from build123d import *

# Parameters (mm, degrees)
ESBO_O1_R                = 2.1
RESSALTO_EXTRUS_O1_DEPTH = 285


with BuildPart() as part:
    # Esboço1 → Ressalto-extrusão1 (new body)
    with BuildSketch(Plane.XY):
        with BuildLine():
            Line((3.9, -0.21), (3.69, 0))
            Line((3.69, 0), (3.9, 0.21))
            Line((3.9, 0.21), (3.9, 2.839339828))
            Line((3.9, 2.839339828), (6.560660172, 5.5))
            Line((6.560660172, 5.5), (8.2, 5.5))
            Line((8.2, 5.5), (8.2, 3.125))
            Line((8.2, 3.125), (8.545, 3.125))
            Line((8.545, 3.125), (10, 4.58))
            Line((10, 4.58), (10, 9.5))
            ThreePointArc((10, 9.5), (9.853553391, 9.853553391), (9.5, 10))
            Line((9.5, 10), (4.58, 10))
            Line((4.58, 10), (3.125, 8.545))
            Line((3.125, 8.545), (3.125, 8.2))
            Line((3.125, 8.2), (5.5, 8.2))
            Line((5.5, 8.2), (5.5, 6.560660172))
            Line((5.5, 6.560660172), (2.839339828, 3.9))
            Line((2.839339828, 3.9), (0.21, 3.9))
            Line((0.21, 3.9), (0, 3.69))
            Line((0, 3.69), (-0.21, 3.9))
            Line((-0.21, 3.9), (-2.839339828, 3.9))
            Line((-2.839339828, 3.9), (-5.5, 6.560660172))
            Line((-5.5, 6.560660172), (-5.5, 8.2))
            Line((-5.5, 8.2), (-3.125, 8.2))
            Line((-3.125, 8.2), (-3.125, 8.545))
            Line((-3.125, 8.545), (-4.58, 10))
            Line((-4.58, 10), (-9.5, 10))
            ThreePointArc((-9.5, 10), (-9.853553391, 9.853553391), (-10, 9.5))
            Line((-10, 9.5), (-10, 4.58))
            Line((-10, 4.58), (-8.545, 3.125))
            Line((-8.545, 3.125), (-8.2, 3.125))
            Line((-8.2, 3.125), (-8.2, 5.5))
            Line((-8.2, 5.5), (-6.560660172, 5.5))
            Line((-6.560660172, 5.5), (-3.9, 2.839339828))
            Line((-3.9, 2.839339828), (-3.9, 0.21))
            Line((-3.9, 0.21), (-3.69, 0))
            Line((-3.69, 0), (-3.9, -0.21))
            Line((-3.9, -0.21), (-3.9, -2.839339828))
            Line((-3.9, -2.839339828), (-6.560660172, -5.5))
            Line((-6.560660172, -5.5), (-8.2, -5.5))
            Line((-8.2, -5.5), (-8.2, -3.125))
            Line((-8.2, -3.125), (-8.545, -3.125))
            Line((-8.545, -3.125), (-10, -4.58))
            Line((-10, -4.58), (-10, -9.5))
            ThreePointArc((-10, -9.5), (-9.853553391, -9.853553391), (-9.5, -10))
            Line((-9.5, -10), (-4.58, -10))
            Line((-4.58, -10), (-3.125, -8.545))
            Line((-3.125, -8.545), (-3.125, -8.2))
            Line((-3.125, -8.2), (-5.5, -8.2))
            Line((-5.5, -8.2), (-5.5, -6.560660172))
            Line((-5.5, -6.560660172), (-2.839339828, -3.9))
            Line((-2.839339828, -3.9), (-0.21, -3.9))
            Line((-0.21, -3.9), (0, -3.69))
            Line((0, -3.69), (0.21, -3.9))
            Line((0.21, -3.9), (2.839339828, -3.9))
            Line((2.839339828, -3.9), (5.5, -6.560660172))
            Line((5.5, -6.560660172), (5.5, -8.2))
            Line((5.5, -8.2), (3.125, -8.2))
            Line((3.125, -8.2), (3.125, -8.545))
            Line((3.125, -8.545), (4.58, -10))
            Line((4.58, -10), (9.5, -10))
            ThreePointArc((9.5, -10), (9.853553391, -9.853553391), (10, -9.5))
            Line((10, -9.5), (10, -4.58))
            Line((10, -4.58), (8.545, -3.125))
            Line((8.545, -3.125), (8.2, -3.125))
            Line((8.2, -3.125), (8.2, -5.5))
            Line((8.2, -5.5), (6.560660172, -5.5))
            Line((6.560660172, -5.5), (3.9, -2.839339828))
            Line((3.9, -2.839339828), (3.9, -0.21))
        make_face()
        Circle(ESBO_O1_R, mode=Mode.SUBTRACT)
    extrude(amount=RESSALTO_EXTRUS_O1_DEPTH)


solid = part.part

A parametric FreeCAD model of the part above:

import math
import FreeCAD as App
import Part
import Sketcher

doc = App.newDocument("Part")
body = doc.addObject("PartDesign::Body", "Body")

# Sketch on XY plane
sketch1 = body.newObject("Sketcher::SketchObject", "Sketch")
sketch1.AttachmentSupport = (doc.getObject("XY_Plane"), [""])
sketch1.MapMode = "FlatFace"
sketch1.addGeometry([
    Part.LineSegment(App.Vector(3.9, -0.21, 0), App.Vector(3.69, 0, 0)),  # 0
    Part.LineSegment(App.Vector(3.69, 0, 0), App.Vector(3.9, 0.21, 0)),  # 1
    Part.LineSegment(App.Vector(3.9, 0.21, 0), App.Vector(3.9, 2.83934, 0)),  # 2
    Part.LineSegment(App.Vector(3.9, 2.83934, 0), App.Vector(6.56066, 5.5, 0)),  # 3
    Part.LineSegment(App.Vector(6.56066, 5.5, 0), App.Vector(8.2, 5.5, 0)),  # 4
    Part.LineSegment(App.Vector(8.2, 5.5, 0), App.Vector(8.2, 3.125, 0)),  # 5
    Part.LineSegment(App.Vector(8.2, 3.125, 0), App.Vector(8.545, 3.125, 0)),  # 6
    Part.LineSegment(App.Vector(8.545, 3.125, 0), App.Vector(10, 4.58, 0)),  # 7
    Part.LineSegment(App.Vector(10, 4.58, 0), App.Vector(10, 9.5, 0)),  # 8
    Part.ArcOfCircle(Part.Circle(App.Vector(9.5, 9.5, 0), App.Vector(0, 0, 1), 0.5), math.radians(0), math.radians(90)),  # 9
    Part.LineSegment(App.Vector(9.5, 10, 0), App.Vector(4.58, 10, 0)),  # 10
    Part.LineSegment(App.Vector(4.58, 10, 0), App.Vector(3.125, 8.545, 0)),  # 11
    Part.LineSegment(App.Vector(3.125, 8.545, 0), App.Vector(3.125, 8.2, 0)),  # 12
    Part.LineSegment(App.Vector(3.125, 8.2, 0), App.Vector(5.5, 8.2, 0)),  # 13
    Part.LineSegment(App.Vector(5.5, 8.2, 0), App.Vector(5.5, 6.56066, 0)),  # 14
    Part.LineSegment(App.Vector(5.5, 6.56066, 0), App.Vector(2.83934, 3.9, 0)),  # 15
    Part.LineSegment(App.Vector(2.83934, 3.9, 0), App.Vector(0.21, 3.9, 0)),  # 16
    Part.LineSegment(App.Vector(0.21, 3.9, 0), App.Vector(0, 3.69, 0)),  # 17
    Part.LineSegment(App.Vector(0, 3.69, 0), App.Vector(-0.21, 3.9, 0)),  # 18
    Part.LineSegment(App.Vector(-0.21, 3.9, 0), App.Vector(-2.83934, 3.9, 0)),  # 19
    Part.LineSegment(App.Vector(-2.83934, 3.9, 0), App.Vector(-5.5, 6.56066, 0)),  # 20
    Part.LineSegment(App.Vector(-5.5, 6.56066, 0), App.Vector(-5.5, 8.2, 0)),  # 21
    Part.LineSegment(App.Vector(-5.5, 8.2, 0), App.Vector(-3.125, 8.2, 0)),  # 22
    Part.LineSegment(App.Vector(-3.125, 8.2, 0), App.Vector(-3.125, 8.545, 0)),  # 23
    Part.LineSegment(App.Vector(-3.125, 8.545, 0), App.Vector(-4.58, 10, 0)),  # 24
    Part.LineSegment(App.Vector(-4.58, 10, 0), App.Vector(-9.5, 10, 0)),  # 25
    Part.ArcOfCircle(Part.Circle(App.Vector(-9.5, 9.5, 0), App.Vector(0, 0, 1), 0.5), math.radians(90), math.radians(180)),  # 26
    Part.LineSegment(App.Vector(-10, 9.5, 0), App.Vector(-10, 4.58, 0)),  # 27
    Part.LineSegment(App.Vector(-10, 4.58, 0), App.Vector(-8.545, 3.125, 0)),  # 28
    Part.LineSegment(App.Vector(-8.545, 3.125, 0), App.Vector(-8.2, 3.125, 0)),  # 29
    Part.LineSegment(App.Vector(-8.2, 3.125, 0), App.Vector(-8.2, 5.5, 0)),  # 30
    Part.LineSegment(App.Vector(-8.2, 5.5, 0), App.Vector(-6.56066, 5.5, 0)),  # 31
    Part.LineSegment(App.Vector(-6.56066, 5.5, 0), App.Vector(-3.9, 2.83934, 0)),  # 32
    Part.LineSegment(App.Vector(-3.9, 2.83934, 0), App.Vector(-3.9, 0.21, 0)),  # 33
    Part.LineSegment(App.Vector(-3.9, 0.21, 0), App.Vector(-3.69, 0, 0)),  # 34
    Part.LineSegment(App.Vector(-3.69, 0, 0), App.Vector(-3.9, -0.21, 0)),  # 35
    Part.LineSegment(App.Vector(-3.9, -0.21, 0), App.Vector(-3.9, -2.83934, 0)),  # 36
    Part.LineSegment(App.Vector(-3.9, -2.83934, 0), App.Vector(-6.56066, -5.5, 0)),  # 37
    Part.LineSegment(App.Vector(-6.56066, -5.5, 0), App.Vector(-8.2, -5.5, 0)),  # 38
    Part.LineSegment(App.Vector(-8.2, -5.5, 0), App.Vector(-8.2, -3.125, 0)),  # 39
    Part.LineSegment(App.Vector(-8.2, -3.125, 0), App.Vector(-8.545, -3.125, 0)),  # 40
    Part.LineSegment(App.Vector(-8.545, -3.125, 0), App.Vector(-10, -4.58, 0)),  # 41
    Part.LineSegment(App.Vector(-10, -4.58, 0), App.Vector(-10, -9.5, 0)),  # 42
    Part.ArcOfCircle(Part.Circle(App.Vector(-9.5, -9.5, 0), App.Vector(0, 0, 1), 0.5), math.radians(180), math.radians(270)),  # 43
    Part.LineSegment(App.Vector(-9.5, -10, 0), App.Vector(-4.58, -10, 0)),  # 44
    Part.LineSegment(App.Vector(-4.58, -10, 0), App.Vector(-3.125, -8.545, 0)),  # 45
    Part.LineSegment(App.Vector(-3.125, -8.545, 0), App.Vector(-3.125, -8.2, 0)),  # 46
    Part.LineSegment(App.Vector(-3.125, -8.2, 0), App.Vector(-5.5, -8.2, 0)),  # 47
    Part.LineSegment(App.Vector(-5.5, -8.2, 0), App.Vector(-5.5, -6.56066, 0)),  # 48
    Part.LineSegment(App.Vector(-5.5, -6.56066, 0), App.Vector(-2.83934, -3.9, 0)),  # 49
    Part.LineSegment(App.Vector(-2.83934, -3.9, 0), App.Vector(-0.21, -3.9, 0)),  # 50
    Part.LineSegment(App.Vector(-0.21, -3.9, 0), App.Vector(0, -3.69, 0)),  # 51
    Part.LineSegment(App.Vector(0, -3.69, 0), App.Vector(0.21, -3.9, 0)),  # 52
    Part.LineSegment(App.Vector(0.21, -3.9, 0), App.Vector(2.83934, -3.9, 0)),  # 53
    Part.LineSegment(App.Vector(2.83934, -3.9, 0), App.Vector(5.5, -6.56066, 0)),  # 54
    Part.LineSegment(App.Vector(5.5, -6.56066, 0), App.Vector(5.5, -8.2, 0)),  # 55
    Part.LineSegment(App.Vector(5.5, -8.2, 0), App.Vector(3.125, -8.2, 0)),  # 56
    Part.LineSegment(App.Vector(3.125, -8.2, 0), App.Vector(3.125, -8.545, 0)),  # 57
    Part.LineSegment(App.Vector(3.125, -8.545, 0), App.Vector(4.58, -10, 0)),  # 58
    Part.LineSegment(App.Vector(4.58, -10, 0), App.Vector(9.5, -10, 0)),  # 59
    Part.ArcOfCircle(Part.Circle(App.Vector(9.5, -9.5, 0), App.Vector(0, 0, 1), 0.5), math.radians(-90), math.radians(0)),  # 60
    Part.LineSegment(App.Vector(10, -9.5, 0), App.Vector(10, -4.58, 0)),  # 61
    Part.LineSegment(App.Vector(10, -4.58, 0), App.Vector(8.545, -3.125, 0)),  # 62
    Part.LineSegment(App.Vector(8.545, -3.125, 0), App.Vector(8.2, -3.125, 0)),  # 63
    Part.LineSegment(App.Vector(8.2, -3.125, 0), App.Vector(8.2, -5.5, 0)),  # 64
    Part.LineSegment(App.Vector(8.2, -5.5, 0), App.Vector(6.56066, -5.5, 0)),  # 65
    Part.LineSegment(App.Vector(6.56066, -5.5, 0), App.Vector(3.9, -2.83934, 0)),  # 66
    Part.LineSegment(App.Vector(3.9, -2.83934, 0), App.Vector(3.9, -0.21, 0)),  # 67
    Part.Circle(App.Vector(0, 0, 0), App.Vector(0, 0, 1), 2.1),  # 68
], False)
sketch1.addConstraint([
    Sketcher.Constraint("Coincident", 0, 2, 1, 1),
    Sketcher.Constraint("Coincident", 1, 2, 2, 1),
    Sketcher.Constraint("Coincident", 2, 2, 3, 1),
    Sketcher.Constraint("Coincident", 3, 2, 4, 1),
    Sketcher.Constraint("Coincident", 4, 2, 5, 1),
    Sketcher.Constraint("Coincident", 5, 2, 6, 1),
    Sketcher.Constraint("Coincident", 6, 2, 7, 1),
    Sketcher.Constraint("Coincident", 7, 2, 8, 1),
    Sketcher.Constraint("Tangent", 8, 2, 9, 1),
    Sketcher.Constraint("Tangent", 9, 2, 10, 1),
    Sketcher.Constraint("Coincident", 10, 2, 11, 1),
    Sketcher.Constraint("Coincident", 11, 2, 12, 1),
    Sketcher.Constraint("Coincident", 12, 2, 13, 1),
    Sketcher.Constraint("Coincident", 13, 2, 14, 1),
    Sketcher.Constraint("Coincident", 14, 2, 15, 1),
    Sketcher.Constraint("Coincident", 15, 2, 16, 1),
    Sketcher.Constraint("Coincident", 16, 2, 17, 1),
    Sketcher.Constraint("Coincident", 17, 2, 18, 1),
    Sketcher.Constraint("Coincident", 18, 2, 19, 1),
    Sketcher.Constraint("Coincident", 19, 2, 20, 1),
    Sketcher.Constraint("Coincident", 20, 2, 21, 1),
    Sketcher.Constraint("Coincident", 21, 2, 22, 1),
    Sketcher.Constraint("Coincident", 22, 2, 23, 1),
    Sketcher.Constraint("Coincident", 23, 2, 24, 1),
    Sketcher.Constraint("Coincident", 24, 2, 25, 1),
    Sketcher.Constraint("Tangent", 25, 2, 26, 1),
    Sketcher.Constraint("Tangent", 26, 2, 27, 1),
    Sketcher.Constraint("Coincident", 27, 2, 28, 1),
    Sketcher.Constraint("Coincident", 28, 2, 29, 1),
    Sketcher.Constraint("Coincident", 29, 2, 30, 1),
    Sketcher.Constraint("Coincident", 30, 2, 31, 1),
    Sketcher.Constraint("Coincident", 31, 2, 32, 1),
    Sketcher.Constraint("Coincident", 32, 2, 33, 1),
    Sketcher.Constraint("Coincident", 33, 2, 34, 1),
    Sketcher.Constraint("Coincident", 34, 2, 35, 1),
    Sketcher.Constraint("Coincident", 35, 2, 36, 1),
    Sketcher.Constraint("Coincident", 36, 2, 37, 1),
    Sketcher.Constraint("Coincident", 37, 2, 38, 1),
    Sketcher.Constraint("Coincident", 38, 2, 39, 1),
    Sketcher.Constraint("Coincident", 39, 2, 40, 1),
    Sketcher.Constraint("Coincident", 40, 2, 41, 1),
    Sketcher.Constraint("Coincident", 41, 2, 42, 1),
    Sketcher.Constraint("Tangent", 42, 2, 43, 1),
    Sketcher.Constraint("Tangent", 43, 2, 44, 1),
    Sketcher.Constraint("Coincident", 44, 2, 45, 1),
    Sketcher.Constraint("Coincident", 45, 2, 46, 1),
    Sketcher.Constraint("Coincident", 46, 2, 47, 1),
    Sketcher.Constraint("Coincident", 47, 2, 48, 1),
    Sketcher.Constraint("Coincident", 48, 2, 49, 1),
    Sketcher.Constraint("Coincident", 49, 2, 50, 1),
    Sketcher.Constraint("Coincident", 50, 2, 51, 1),
    Sketcher.Constraint("Coincident", 51, 2, 52, 1),
    Sketcher.Constraint("Coincident", 52, 2, 53, 1),
    Sketcher.Constraint("Coincident", 53, 2, 54, 1),
    Sketcher.Constraint("Coincident", 54, 2, 55, 1),
    Sketcher.Constraint("Coincident", 55, 2, 56, 1),
    Sketcher.Constraint("Coincident", 56, 2, 57, 1),
    Sketcher.Constraint("Coincident", 57, 2, 58, 1),
    Sketcher.Constraint("Coincident", 58, 2, 59, 1),
    Sketcher.Constraint("Tangent", 59, 2, 60, 1),
    Sketcher.Constraint("Tangent", 60, 2, 61, 1),
    Sketcher.Constraint("Coincident", 61, 2, 62, 1),
    Sketcher.Constraint("Coincident", 62, 2, 63, 1),
    Sketcher.Constraint("Coincident", 63, 2, 64, 1),
    Sketcher.Constraint("Coincident", 64, 2, 65, 1),
    Sketcher.Constraint("Coincident", 65, 2, 66, 1),
    Sketcher.Constraint("Coincident", 66, 2, 67, 1),
    Sketcher.Constraint("Coincident", 67, 2, 0, 1),
    Sketcher.Constraint("Vertical", 2),
    Sketcher.Constraint("Horizontal", 4),
    Sketcher.Constraint("Vertical", 5),
    Sketcher.Constraint("Horizontal", 6),
    Sketcher.Constraint("Vertical", 8),
    Sketcher.Constraint("Horizontal", 10),
    Sketcher.Constraint("Vertical", 12),
    Sketcher.Constraint("Horizontal", 13),
    Sketcher.Constraint("Vertical", 14),
    Sketcher.Constraint("Horizontal", 16),
    Sketcher.Constraint("Horizontal", 19),
    Sketcher.Constraint("Vertical", 21),
    Sketcher.Constraint("Horizontal", 22),
    Sketcher.Constraint("Vertical", 23),
    Sketcher.Constraint("Horizontal", 25),
    Sketcher.Constraint("Vertical", 27),
    Sketcher.Constraint("Horizontal", 29),
    Sketcher.Constraint("Vertical", 30),
    Sketcher.Constraint("Horizontal", 31),
    Sketcher.Constraint("Vertical", 33),
    Sketcher.Constraint("Vertical", 36),
    Sketcher.Constraint("Horizontal", 38),
    Sketcher.Constraint("Vertical", 39),
    Sketcher.Constraint("Horizontal", 40),
    Sketcher.Constraint("Vertical", 42),
    Sketcher.Constraint("Horizontal", 44),
    Sketcher.Constraint("Vertical", 46),
    Sketcher.Constraint("Horizontal", 47),
    Sketcher.Constraint("Vertical", 48),
    Sketcher.Constraint("Horizontal", 50),
    Sketcher.Constraint("Horizontal", 53),
    Sketcher.Constraint("Vertical", 55),
    Sketcher.Constraint("Horizontal", 56),
    Sketcher.Constraint("Vertical", 57),
    Sketcher.Constraint("Horizontal", 59),
    Sketcher.Constraint("Vertical", 61),
    Sketcher.Constraint("Horizontal", 63),
    Sketcher.Constraint("Vertical", 64),
    Sketcher.Constraint("Horizontal", 65),
    Sketcher.Constraint("Vertical", 67),
    Sketcher.Constraint("Coincident", 68, 3, -1, 1),
    Sketcher.Constraint("Equal", 9, 26),
    Sketcher.Constraint("Equal", 26, 43),
    Sketcher.Constraint("Equal", 43, 60),
    Sketcher.Constraint("Symmetric", 9, 3, 43, 3, -1, 1),
    Sketcher.Constraint("Symmetric", 26, 3, 60, 3, -1, 1),
    Sketcher.Constraint("Symmetric", 0, 2, 34, 2, -1, 1),
    Sketcher.Constraint("Symmetric", 1, 2, 35, 2, -1, 1),
    Sketcher.Constraint("Symmetric", 3, 2, 37, 2, -1, 1),
    Sketcher.Constraint("Symmetric", 5, 2, 39, 2, -1, 1),
    Sketcher.Constraint("Symmetric", 11, 2, 45, 2, -1, 1),
    Sketcher.Constraint("Symmetric", 13, 2, 47, 2, -1, 1),
    Sketcher.Constraint("Symmetric", 15, 2, 49, 2, -1, 1),
    Sketcher.Constraint("Symmetric", 17, 2, 51, 2, -1, 1),
    Sketcher.Constraint("Symmetric", 18, 2, 52, 2, -1, 1),
    Sketcher.Constraint("Symmetric", 20, 2, 54, 2, -1, 1),
    Sketcher.Constraint("Symmetric", 22, 2, 56, 2, -1, 1),
    Sketcher.Constraint("Symmetric", 28, 2, 62, 2, -1, 1),
    Sketcher.Constraint("Symmetric", 30, 2, 64, 2, -1, 1),
    Sketcher.Constraint("Symmetric", 32, 2, 66, 2, -1, 1),
    Sketcher.Constraint("Symmetric", 9, 3, 26, 3, -2),
    Sketcher.Constraint("Symmetric", 16, 2, 18, 2, -2),
    Sketcher.Constraint("Symmetric", 14, 2, 20, 2, -2),
    Sketcher.Constraint("Symmetric", 12, 2, 22, 2, -2),
    Sketcher.Constraint("Symmetric", 6, 2, 28, 2, -2),
    Sketcher.Constraint("Symmetric", 4, 2, 30, 2, -2),
    Sketcher.Constraint("Symmetric", 2, 2, 32, 2, -2),
    Sketcher.Constraint("PointOnObject", 0, 2, -1),
    Sketcher.Constraint("PointOnObject", 17, 2, -2),
    Sketcher.Constraint("Perpendicular", 0, 1),
    Sketcher.Constraint("Parallel", 1, 3),
    Sketcher.Constraint("Parallel", 3, 7),
    Sketcher.Constraint("Parallel", 7, 11),
    Sketcher.Constraint("Parallel", 11, 15),
    Sketcher.Constraint("Parallel", 15, 17),
    Sketcher.Constraint("Perpendicular", 17, 18),
    Sketcher.Constraint("Parallel", 18, 20),
    Sketcher.Constraint("Parallel", 20, 24),
    Sketcher.Constraint("Parallel", 24, 28),
    Sketcher.Constraint("Parallel", 28, 32),
    Sketcher.Constraint("Parallel", 32, 34),
    Sketcher.Constraint("Parallel", 35, 37),
    Sketcher.Constraint("Parallel", 37, 41),
    Sketcher.Constraint("Parallel", 41, 45),
    Sketcher.Constraint("Parallel", 45, 49),
    Sketcher.Constraint("Parallel", 49, 51),
    Sketcher.Constraint("Parallel", 52, 54),
    Sketcher.Constraint("Parallel", 54, 58),
    Sketcher.Constraint("Parallel", 58, 62),
    Sketcher.Constraint("Parallel", 62, 66),
    Sketcher.Constraint("Horizontal", 11, 2, 23, 2),
    Sketcher.Constraint("Horizontal", 45, 2, 57, 2),
    Sketcher.Constraint("Horizontal", 41, 2, 61, 2),
    Sketcher.Constraint("Equal", 53, 2),
    Sketcher.Constraint("Equal", 56, 5),
    Sketcher.Constraint("Equal", 59, 8),
    Sketcher.Constraint("Equal", 63, 12),
    Sketcher.Constraint("Equal", 65, 14),
    Sketcher.Constraint("Equal", 7, 11),
    Sketcher.Constraint("Equal", 3, 15),
    Sketcher.Constraint("Equal", 1, 17),
    Sketcher.Constraint("Diameter", 68, 4.2),
    Sketcher.Constraint("Radius", 9, 0.5),
    Sketcher.Constraint("DistanceX", -1, 1, 7, 2, 10.0),
    Sketcher.Constraint("DistanceX", 10, 2, 10, 1, 4.92),
    Sketcher.Constraint("DistanceX", -1, 1, 1, 2, 3.9),
    Sketcher.Constraint("DistanceY", -1, 1, 3, 2, 5.5),
    Sketcher.Constraint("DistanceX", -1, 1, 4, 2, 8.2),
    Sketcher.Constraint("DistanceX", 6, 1, 6, 2, 0.345),
    Sketcher.Constraint("DistanceX", -1, 1, 0, 2, 3.69),
    Sketcher.Constraint("DistanceX", 4, 1, 4, 2, 1.63934),
])
pad1 = body.newObject("PartDesign::Pad", "Pad")
pad1.Profile = sketch1
pad1.Length = 285

doc.recompute()
